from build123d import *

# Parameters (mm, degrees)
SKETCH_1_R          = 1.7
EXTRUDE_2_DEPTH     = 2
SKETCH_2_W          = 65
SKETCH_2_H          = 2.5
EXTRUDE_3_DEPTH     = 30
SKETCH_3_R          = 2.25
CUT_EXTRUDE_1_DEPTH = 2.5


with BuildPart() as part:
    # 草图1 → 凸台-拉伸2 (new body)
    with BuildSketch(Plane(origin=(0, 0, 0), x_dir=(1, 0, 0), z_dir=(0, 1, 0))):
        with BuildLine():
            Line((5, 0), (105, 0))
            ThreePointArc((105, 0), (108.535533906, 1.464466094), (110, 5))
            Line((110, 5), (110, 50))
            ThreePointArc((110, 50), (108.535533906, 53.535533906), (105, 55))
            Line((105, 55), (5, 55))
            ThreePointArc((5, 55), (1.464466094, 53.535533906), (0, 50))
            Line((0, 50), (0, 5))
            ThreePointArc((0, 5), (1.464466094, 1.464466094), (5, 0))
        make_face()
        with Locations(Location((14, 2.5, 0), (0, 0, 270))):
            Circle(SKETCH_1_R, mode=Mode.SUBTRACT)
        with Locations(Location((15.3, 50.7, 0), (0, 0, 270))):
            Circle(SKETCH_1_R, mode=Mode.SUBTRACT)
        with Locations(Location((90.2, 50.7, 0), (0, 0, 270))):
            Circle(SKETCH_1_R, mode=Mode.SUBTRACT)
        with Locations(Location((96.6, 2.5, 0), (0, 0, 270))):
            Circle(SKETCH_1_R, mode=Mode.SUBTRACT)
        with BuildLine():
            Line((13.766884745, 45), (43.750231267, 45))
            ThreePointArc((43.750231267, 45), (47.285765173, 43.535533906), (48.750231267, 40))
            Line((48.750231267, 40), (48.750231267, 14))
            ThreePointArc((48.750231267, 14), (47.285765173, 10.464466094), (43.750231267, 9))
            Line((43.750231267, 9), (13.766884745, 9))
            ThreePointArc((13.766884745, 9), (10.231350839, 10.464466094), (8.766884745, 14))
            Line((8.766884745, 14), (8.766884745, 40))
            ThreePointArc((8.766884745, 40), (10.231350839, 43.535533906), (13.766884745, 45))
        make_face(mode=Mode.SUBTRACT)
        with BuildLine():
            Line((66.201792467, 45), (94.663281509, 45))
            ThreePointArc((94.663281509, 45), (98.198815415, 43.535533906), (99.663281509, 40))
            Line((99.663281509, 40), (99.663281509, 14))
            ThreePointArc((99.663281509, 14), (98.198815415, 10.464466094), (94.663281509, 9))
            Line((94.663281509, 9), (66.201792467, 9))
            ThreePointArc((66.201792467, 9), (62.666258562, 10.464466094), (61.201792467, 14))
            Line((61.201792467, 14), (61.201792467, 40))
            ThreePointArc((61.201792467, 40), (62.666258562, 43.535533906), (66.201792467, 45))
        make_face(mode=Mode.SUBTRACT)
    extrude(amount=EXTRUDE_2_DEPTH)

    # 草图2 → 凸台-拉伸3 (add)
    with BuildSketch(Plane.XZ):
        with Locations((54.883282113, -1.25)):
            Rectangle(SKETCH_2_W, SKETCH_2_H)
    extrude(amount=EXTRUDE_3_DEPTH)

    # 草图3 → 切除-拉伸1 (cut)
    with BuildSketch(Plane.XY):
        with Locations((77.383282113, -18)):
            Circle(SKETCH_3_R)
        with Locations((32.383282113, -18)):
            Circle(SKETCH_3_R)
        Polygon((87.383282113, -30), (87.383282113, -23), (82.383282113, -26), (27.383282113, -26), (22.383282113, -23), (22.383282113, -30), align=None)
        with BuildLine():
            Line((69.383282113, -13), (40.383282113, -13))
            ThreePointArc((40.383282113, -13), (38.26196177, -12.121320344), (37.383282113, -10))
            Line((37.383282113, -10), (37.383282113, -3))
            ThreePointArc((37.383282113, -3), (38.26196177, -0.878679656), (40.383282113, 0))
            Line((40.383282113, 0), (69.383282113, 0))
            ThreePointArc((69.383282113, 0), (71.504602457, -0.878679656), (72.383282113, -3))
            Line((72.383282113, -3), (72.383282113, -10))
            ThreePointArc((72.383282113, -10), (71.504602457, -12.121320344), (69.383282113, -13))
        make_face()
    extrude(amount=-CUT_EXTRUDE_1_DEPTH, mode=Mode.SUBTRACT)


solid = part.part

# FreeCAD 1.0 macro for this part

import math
import FreeCAD as App
import Part
import Sketcher
from FreeCAD import Vector

doc = App.newDocument("Part")
body = doc.addObject("PartDesign::Body", "Body")

# Sketch on XZ plane
sketch1 = body.newObject("Sketcher::SketchObject", "Sketch")
sketch1.AttachmentSupport = (doc.getObject("XZ_Plane"), [""])
sketch1.MapMode = "FlatFace"
sketch1.addGeometry([
    Part.LineSegment(Vector(5, 0, 0), Vector(105, 0, 0)),  # 0
    Part.ArcOfCircle(Part.Circle(Vector(105, -5, 0), Vector(0, 0, 1), 5), math.radians(0), math.radians(90)),  # 1
    Part.LineSegment(Vector(110, -5, 0), Vector(110, -50, 0)),  # 2
    Part.ArcOfCircle(Part.Circle(Vector(105, -50, 0), Vector(0, 0, 1), 5), math.radians(-90), math.radians(0)),  # 3
    Part.LineSegment(Vector(105, -55, 0), Vector(5, -55, 0)),  # 4
    Part.ArcOfCircle(Part.Circle(Vector(5, -50, 0), Vector(0, 0, 1), 5), math.radians(180), math.radians(270)),  # 5
    Part.LineSegment(Vector(0, -50, 0), Vector(0, -5, 0)),  # 6
    Part.ArcOfCircle(Part.Circle(Vector(5, -5, 0), Vector(0, 0, 1), 5), math.radians(90), math.radians(180)),  # 7
    Part.Circle(Vector(14, -2.5, 0), Vector(0, 0, 1), 1.7),  # 8
    Part.Circle(Vector(96.6, -2.5, 0), Vector(0, 0, 1), 1.7),  # 9
    Part.ArcOfCircle(Part.Circle(Vector(13.8, -40, 0), Vector(0, 0, 1), 5), math.radians(180), math.radians(270)),  # 10
    Part.LineSegment(Vector(13.8, -45, 0), Vector(43.8, -45, 0)),  # 11
    Part.ArcOfCircle(Part.Circle(Vector(43.8, -40, 0), Vector(0, 0, 1), 5), math.radians(-90), math.radians(0)),  # 12
    Part.LineSegment(Vector(48.8, -40, 0), Vector(48.8, -14, 0)),  # 13
    Part.ArcOfCircle(Part.Circle(Vector(43.8, -14, 0), Vector(0, 0, 1), 5), math.radians(0), math.radians(90)),  # 14
    Part.LineSegment(Vector(43.8, -9, 0), Vector(13.8, -9, 0)),  # 15
    Part.ArcOfCircle(Part.Circle(Vector(13.8, -14, 0), Vector(0, 0, 1), 5), math.radians(90), math.radians(180)),  # 16
    Part.LineSegment(Vector(8.8, -14, 0), Vector(8.8, -40, 0)),  # 17
    Part.Circle(Vector(15.3, -50.7, 0), Vector(0, 0, 1), 1.7),  # 18
    Part.ArcOfCircle(Part.Circle(Vector(66.2, -40, 0), Vector(0, 0, 1), 5), math.radians(-180), math.radians(-90)),  # 19
    Part.LineSegment(Vector(66.2, -45, 0), Vector(94.7, -45, 0)),  # 20
    Part.ArcOfCircle(Part.Circle(Vector(94.7, -40, 0), Vector(0, 0, 1), 5), math.radians(-90), math.radians(0)),  # 21
    Part.LineSegment(Vector(99.7, -40, 0), Vector(99.7, -14, 0)),  # 22
    Part.ArcOfCircle(Part.Circle(Vector(94.7, -14, 0), Vector(0, 0, 1), 5), math.radians(0), math.radians(90)),  # 23
    Part.LineSegment(Vector(94.7, -9, 0), Vector(66.2, -9, 0)),  # 24
    Part.ArcOfCircle(Part.Circle(Vector(66.2, -14, 0), Vector(0, 0, 1), 5), math.radians(90), math.radians(180)),  # 25
    Part.LineSegment(Vector(61.2, -14, 0), Vector(61.2, -40, 0)),  # 26
    Part.Circle(Vector(90.2, -50.7, 0), Vector(0, 0, 1), 1.7),  # 27
], False)
sketch1.addConstraint([
    Sketcher.Constraint("Tangent", 0, 2, 1, 2),
    Sketcher.Constraint("Tangent", 1, 1, 2, 1),
    Sketcher.Constraint("Tangent", 2, 2, 3, 2),
    Sketcher.Constraint("Tangent", 3, 1, 4, 1),
    Sketcher.Constraint("Tangent", 4, 2, 5, 2),
    Sketcher.Constraint("Tangent", 5, 1, 6, 1),
    Sketcher.Constraint("Tangent", 6, 2, 7, 2),
    Sketcher.Constraint("Tangent", 7, 1, 0, 1),
    Sketcher.Constraint("Tangent", 10, 2, 11, 1),
    Sketcher.Constraint("Tangent", 11, 2, 12, 1),
    Sketcher.Constraint("Tangent", 12, 2, 13, 1),
    Sketcher.Constraint("Tangent", 13, 2, 14, 1),
    Sketcher.Constraint("Tangent", 14, 2, 15, 1),
    Sketcher.Constraint("Tangent", 15, 2, 16, 1),
    Sketcher.Constraint("Tangent", 16, 2, 17, 1),
    Sketcher.Constraint("Tangent", 17, 2, 10, 1),
    Sketcher.Constraint("Tangent", 19, 2, 20, 1),
    Sketcher.Constraint("Tangent", 20, 2, 21, 1),
    Sketcher.Constraint("Tangent", 21, 2, 22, 1),
    Sketcher.Constraint("Tangent", 22, 2, 23, 1),
    Sketcher.Constraint("Tangent", 23, 2, 24, 1),
    Sketcher.Constraint("Tangent", 24, 2, 25, 1),
    Sketcher.Constraint("Tangent", 25, 2, 26, 1),
    Sketcher.Constraint("Tangent", 26, 2, 19, 1),
    Sketcher.Constraint("Horizontal", 0),
    Sketcher.Constraint("Vertical", 2),
    Sketcher.Constraint("Horizontal", 4),
    Sketcher.Constraint("Vertical", 6),
    Sketcher.Constraint("Horizontal", 11),
    Sketcher.Constraint("Vertical", 13),
    Sketcher.Constraint("Horizontal", 15),
    Sketcher.Constraint("Vertical", 17),
    Sketcher.Constraint("Horizontal", 20),
    Sketcher.Constraint("Vertical", 22),
    Sketcher.Constraint("Horizontal", 24),
    Sketcher.Constraint("Vertical", 26),
    Sketcher.Constraint("Equal", 1, 3),
    Sketcher.Constraint("Equal", 3, 5),
    Sketcher.Constraint("Equal", 5, 7),
    Sketcher.Constraint("Equal", 8, 9),
    Sketcher.Constraint("Equal", 7, 10),
    Sketcher.Constraint("Equal", 10, 12),
    Sketcher.Constraint("Equal", 12, 14),
    Sketcher.Constraint("Equal", 14, 16),
    Sketcher.Constraint("Equal", 9, 18),
    Sketcher.Constraint("Equal", 16, 19),
    Sketcher.Constraint("Equal", 19, 21),
    Sketcher.Constraint("Equal", 21, 23),
    Sketcher.Constraint("Equal", 23, 25),
    Sketcher.Constraint("Equal", 18, 27),
    Sketcher.Constraint("PointOnObject", 0, 2, -1),
    Sketcher.Constraint("PointOnObject", 5, 1, -2),
    Sketcher.Constraint("Horizontal", 8, 3, 9, 3),
    Sketcher.Constraint("Horizontal", 12, 3, 19, 3),
    Sketcher.Constraint("Horizontal", 16, 3, 23, 3),
    Sketcher.Constraint("Horizontal", 18, 3, 27, 3),
    Sketcher.Constraint("Radius", 1, 5.0),
    Sketcher.Constraint("Diameter", 8, 3.4),
    Sketcher.Constraint("DistanceX", 0, 1, 0, 2, 100.0),
    Sketcher.Constraint("DistanceY", 2, 2, 2, 1, 45.0),
    Sketcher.Constraint("DistanceY", 13, 1, 13, 2, 26.0),
    Sketcher.Constraint("DistanceX", -1, 1, 8, 3, 14.0),
    Sketcher.Constraint("DistanceY", 10, 3, -1, 1, 40.0),
    Sketcher.Constraint("DistanceY", 8, 3, -1, 1, 2.5),
    Sketcher.Constraint("DistanceX", -1, 1, 9, 3, 96.6),
    Sketcher.Constraint("DistanceX", -1, 1, 18, 3, 15.3),
    Sketcher.Constraint("DistanceY", 18, 3, -1, 1, 50.7),
    Sketcher.Constraint("DistanceX", -1, 1, 27, 3, 90.2),
    Sketcher.Constraint("DistanceX", 20, 1, 20, 2, 28.461489),
    Sketcher.Constraint("DistanceX", 11, 1, 11, 2, 29.983347),
    Sketcher.Constraint("DistanceX", -1, 1, 12, 3, 43.750231),
    Sketcher.Constraint("DistanceX", -1, 1, 21, 3, 94.663282),
])
pad1 = body.newObject("PartDesign::Pad", "Pad")
pad1.Profile = sketch1
pad1.Length = 2
pad1.Reversed = True

# Sketch on XZ plane
sketch2 = body.newObject("Sketcher::SketchObject", "Sketch001")
sketch2.AttachmentSupport = (doc.getObject("XZ_Plane"), [""])
sketch2.MapMode = "FlatFace"
sketch2.addGeometry([
    Part.LineSegment(Vector(22.4, 0, 0), Vector(22.4, -2.5, 0)),
    Part.LineSegment(Vector(22.4, -2.5, 0), Vector(87.4, -2.5, 0)),
    Part.LineSegment(Vector(87.4, -2.5, 0), Vector(87.4, 0, 0)),
    Part.LineSegment(Vector(87.4, 0, 0), Vector(22.4, 0, 0)),
], False)
sketch2.addConstraint([
    Sketcher.Constraint("Coincident", 0, 2, 1, 1),
    Sketcher.Constraint("Coincident", 1, 2, 2, 1),
    Sketcher.Constraint("Coincident", 2, 2, 3, 1),
    Sketcher.Constraint("Coincident", 3, 2, 0, 1),
    Sketcher.Constraint("Vertical", 0),
    Sketcher.Constraint("Horizontal", 1),
    Sketcher.Constraint("Vertical", 2),
    Sketcher.Constraint("Horizontal", 3),
    Sketcher.Constraint("PointOnObject", 2, 2, -1),
    Sketcher.Constraint("DistanceX", 1, 1, 1, 2, 65.0),
    Sketcher.Constraint("DistanceY", 0, 2, 0, 1, 2.5),
    Sketcher.Constraint("DistanceX", -1, 1, 0, 2, 22.383282),
])
pad2 = body.newObject("PartDesign::Pad", "Pad001")
pad2.Profile = sketch2
pad2.Length = 30

# Sketch on XY plane
sketch3 = body.newObject("Sketcher::SketchObject", "Sketch002")
sketch3.AttachmentSupport = (doc.getObject("XY_Plane"), [""])
sketch3.MapMode = "FlatFace"
sketch3.addGeometry([
    Part.Circle(Vector(77.4, -18, 0), Vector(0, 0, 1), 2.2),  # 0
    Part.Circle(Vector(32.4, -18, 0), Vector(0, 0, 1), 2.2),  # 1
    Part.LineSegment(Vector(87.4, -30, 0), Vector(87.4, -23, 0)),  # 2
    Part.LineSegment(Vector(87.4, -23, 0), Vector(82.4, -26, 0)),  # 3
    Part.LineSegment(Vector(82.4, -26, 0), Vector(27.4, -26, 0)),  # 4
    Part.LineSegment(Vector(27.4, -26, 0), Vector(22.4, -23, 0)),  # 5
    Part.LineSegment(Vector(22.4, -23, 0), Vector(22.4, -30, 0)),  # 6
    Part.LineSegment(Vector(22.4, -30, 0), Vector(87.4, -30, 0)),  # 7
    Part.LineSegment(Vector(40.4, -13, 0), Vector(69.4, -13, 0)),  # 8
    Part.ArcOfCircle(Part.Circle(Vector(69.4, -10, 0), Vector(0, 0, 1), 3), math.radians(-90), math.radians(0)),  # 9
    Part.LineSegment(Vector(72.4, -10, 0), Vector(72.4, -3, 0)),  # 10
    Part.ArcOfCircle(Part.Circle(Vector(69.4, -3, 0), Vector(0, 0, 1), 3), math.radians(0), math.radians(90)),  # 11
    Part.LineSegment(Vector(69.4, 0, 0), Vector(40.4, 0, 0)),  # 12
    Part.ArcOfCircle(Part.Circle(Vector(40.4, -3, 0), Vector(0, 0, 1), 3), math.radians(90), math.radians(180)),  # 13
    Part.LineSegment(Vector(37.4, -3, 0), Vector(37.4, -10, 0)),  # 14
    Part.ArcOfCircle(Part.Circle(Vector(40.4, -10, 0), Vector(0, 0, 1), 3), math.radians(180), math.radians(270)),  # 15
], False)
sketch3.addConstraint([
    Sketcher.Constraint("Coincident", 2, 2, 3, 1),
    Sketcher.Constraint("Coincident", 3, 2, 4, 1),
    Sketcher.Constraint("Coincident", 4, 2, 5, 1),
    Sketcher.Constraint("Coincident", 5, 2, 6, 1),
    Sketcher.Constraint("Coincident", 6, 2, 7, 1),
    Sketcher.Constraint("Coincident", 7, 2, 2, 1),
    Sketcher.Constraint("Tangent", 8, 2, 9, 1),
    Sketcher.Constraint("Tangent", 9, 2, 10, 1),
    Sketcher.Constraint("Tangent", 10, 2, 11, 1),
    Sketcher.Constraint("Tangent", 11, 2, 12, 1),
    Sketcher.Constraint("Tangent", 12, 2, 13, 1),
    Sketcher.Constraint("Tangent", 13, 2, 14, 1),
    Sketcher.Constraint("Tangent", 14, 2, 15, 1),
    Sketcher.Constraint("Tangent", 15, 2, 8, 1),
    Sketcher.Constraint("Vertical", 2),
    Sketcher.Constraint("Horizontal", 4),
    Sketcher.Constraint("Vertical", 6),
    Sketcher.Constraint("Horizontal", 7),
    Sketcher.Constraint("Horizontal", 8),
    Sketcher.Constraint("Vertical", 10),
    Sketcher.Constraint("Horizontal", 12),
    Sketcher.Constraint("Vertical", 14),
    Sketcher.Constraint("Equal", 0, 1),
    Sketcher.Constraint("Equal", 9, 11),
    Sketcher.Constraint("Equal", 11, 13),
    Sketcher.Constraint("Equal", 13, 15),
    Sketcher.Constraint("PointOnObject", 11, 2, -1),
    Sketcher.Constraint("Horizontal", 0, 3, 1, 3),
    Sketcher.Constraint("Horizontal", 2, 2, 5, 2),
    Sketcher.Constraint("Equal", 6, 10),
    Sketcher.Constraint("Equal", 3, 5),
    Sketcher.Constraint("Radius", 9, 3.0),
    Sketcher.Constraint("Diameter", 0, 4.5),
    Sketcher.Constraint("DistanceX", 4, 2, 4, 1, 55.0),
    Sketcher.Constraint("DistanceX", 7, 1, 7, 2, 65.0),
    Sketcher.Constraint("DistanceX", 8, 1, 8, 2, 29.0),
    Sketcher.Constraint("DistanceY", 2, 1, 2, 2, 7.0),
    Sketcher.Constraint("DistanceY", 0, 3, -1, 1, 18.0),
    Sketcher.Constraint("DistanceY", 2, 2, -1, 1, 23.0),
    Sketcher.Constraint("DistanceY", 3, 2, -1, 1, 26.0),
    Sketcher.Constraint("DistanceX", 1, 3, 0, 3, 45.0),
    Sketcher.Constraint("DistanceX", 9, 3, 0, 3, 8.0),
    Sketcher.Constraint("DistanceX", 0, 3, 2, 2, 10.0),
    Sketcher.Constraint("DistanceX", -1, 1, 0, 3, 77.383282),
])
pocket1 = body.newObject("PartDesign::Pocket", "Pocket")
pocket1.Profile = sketch3
pocket1.Length = 2.5

doc.recompute()
